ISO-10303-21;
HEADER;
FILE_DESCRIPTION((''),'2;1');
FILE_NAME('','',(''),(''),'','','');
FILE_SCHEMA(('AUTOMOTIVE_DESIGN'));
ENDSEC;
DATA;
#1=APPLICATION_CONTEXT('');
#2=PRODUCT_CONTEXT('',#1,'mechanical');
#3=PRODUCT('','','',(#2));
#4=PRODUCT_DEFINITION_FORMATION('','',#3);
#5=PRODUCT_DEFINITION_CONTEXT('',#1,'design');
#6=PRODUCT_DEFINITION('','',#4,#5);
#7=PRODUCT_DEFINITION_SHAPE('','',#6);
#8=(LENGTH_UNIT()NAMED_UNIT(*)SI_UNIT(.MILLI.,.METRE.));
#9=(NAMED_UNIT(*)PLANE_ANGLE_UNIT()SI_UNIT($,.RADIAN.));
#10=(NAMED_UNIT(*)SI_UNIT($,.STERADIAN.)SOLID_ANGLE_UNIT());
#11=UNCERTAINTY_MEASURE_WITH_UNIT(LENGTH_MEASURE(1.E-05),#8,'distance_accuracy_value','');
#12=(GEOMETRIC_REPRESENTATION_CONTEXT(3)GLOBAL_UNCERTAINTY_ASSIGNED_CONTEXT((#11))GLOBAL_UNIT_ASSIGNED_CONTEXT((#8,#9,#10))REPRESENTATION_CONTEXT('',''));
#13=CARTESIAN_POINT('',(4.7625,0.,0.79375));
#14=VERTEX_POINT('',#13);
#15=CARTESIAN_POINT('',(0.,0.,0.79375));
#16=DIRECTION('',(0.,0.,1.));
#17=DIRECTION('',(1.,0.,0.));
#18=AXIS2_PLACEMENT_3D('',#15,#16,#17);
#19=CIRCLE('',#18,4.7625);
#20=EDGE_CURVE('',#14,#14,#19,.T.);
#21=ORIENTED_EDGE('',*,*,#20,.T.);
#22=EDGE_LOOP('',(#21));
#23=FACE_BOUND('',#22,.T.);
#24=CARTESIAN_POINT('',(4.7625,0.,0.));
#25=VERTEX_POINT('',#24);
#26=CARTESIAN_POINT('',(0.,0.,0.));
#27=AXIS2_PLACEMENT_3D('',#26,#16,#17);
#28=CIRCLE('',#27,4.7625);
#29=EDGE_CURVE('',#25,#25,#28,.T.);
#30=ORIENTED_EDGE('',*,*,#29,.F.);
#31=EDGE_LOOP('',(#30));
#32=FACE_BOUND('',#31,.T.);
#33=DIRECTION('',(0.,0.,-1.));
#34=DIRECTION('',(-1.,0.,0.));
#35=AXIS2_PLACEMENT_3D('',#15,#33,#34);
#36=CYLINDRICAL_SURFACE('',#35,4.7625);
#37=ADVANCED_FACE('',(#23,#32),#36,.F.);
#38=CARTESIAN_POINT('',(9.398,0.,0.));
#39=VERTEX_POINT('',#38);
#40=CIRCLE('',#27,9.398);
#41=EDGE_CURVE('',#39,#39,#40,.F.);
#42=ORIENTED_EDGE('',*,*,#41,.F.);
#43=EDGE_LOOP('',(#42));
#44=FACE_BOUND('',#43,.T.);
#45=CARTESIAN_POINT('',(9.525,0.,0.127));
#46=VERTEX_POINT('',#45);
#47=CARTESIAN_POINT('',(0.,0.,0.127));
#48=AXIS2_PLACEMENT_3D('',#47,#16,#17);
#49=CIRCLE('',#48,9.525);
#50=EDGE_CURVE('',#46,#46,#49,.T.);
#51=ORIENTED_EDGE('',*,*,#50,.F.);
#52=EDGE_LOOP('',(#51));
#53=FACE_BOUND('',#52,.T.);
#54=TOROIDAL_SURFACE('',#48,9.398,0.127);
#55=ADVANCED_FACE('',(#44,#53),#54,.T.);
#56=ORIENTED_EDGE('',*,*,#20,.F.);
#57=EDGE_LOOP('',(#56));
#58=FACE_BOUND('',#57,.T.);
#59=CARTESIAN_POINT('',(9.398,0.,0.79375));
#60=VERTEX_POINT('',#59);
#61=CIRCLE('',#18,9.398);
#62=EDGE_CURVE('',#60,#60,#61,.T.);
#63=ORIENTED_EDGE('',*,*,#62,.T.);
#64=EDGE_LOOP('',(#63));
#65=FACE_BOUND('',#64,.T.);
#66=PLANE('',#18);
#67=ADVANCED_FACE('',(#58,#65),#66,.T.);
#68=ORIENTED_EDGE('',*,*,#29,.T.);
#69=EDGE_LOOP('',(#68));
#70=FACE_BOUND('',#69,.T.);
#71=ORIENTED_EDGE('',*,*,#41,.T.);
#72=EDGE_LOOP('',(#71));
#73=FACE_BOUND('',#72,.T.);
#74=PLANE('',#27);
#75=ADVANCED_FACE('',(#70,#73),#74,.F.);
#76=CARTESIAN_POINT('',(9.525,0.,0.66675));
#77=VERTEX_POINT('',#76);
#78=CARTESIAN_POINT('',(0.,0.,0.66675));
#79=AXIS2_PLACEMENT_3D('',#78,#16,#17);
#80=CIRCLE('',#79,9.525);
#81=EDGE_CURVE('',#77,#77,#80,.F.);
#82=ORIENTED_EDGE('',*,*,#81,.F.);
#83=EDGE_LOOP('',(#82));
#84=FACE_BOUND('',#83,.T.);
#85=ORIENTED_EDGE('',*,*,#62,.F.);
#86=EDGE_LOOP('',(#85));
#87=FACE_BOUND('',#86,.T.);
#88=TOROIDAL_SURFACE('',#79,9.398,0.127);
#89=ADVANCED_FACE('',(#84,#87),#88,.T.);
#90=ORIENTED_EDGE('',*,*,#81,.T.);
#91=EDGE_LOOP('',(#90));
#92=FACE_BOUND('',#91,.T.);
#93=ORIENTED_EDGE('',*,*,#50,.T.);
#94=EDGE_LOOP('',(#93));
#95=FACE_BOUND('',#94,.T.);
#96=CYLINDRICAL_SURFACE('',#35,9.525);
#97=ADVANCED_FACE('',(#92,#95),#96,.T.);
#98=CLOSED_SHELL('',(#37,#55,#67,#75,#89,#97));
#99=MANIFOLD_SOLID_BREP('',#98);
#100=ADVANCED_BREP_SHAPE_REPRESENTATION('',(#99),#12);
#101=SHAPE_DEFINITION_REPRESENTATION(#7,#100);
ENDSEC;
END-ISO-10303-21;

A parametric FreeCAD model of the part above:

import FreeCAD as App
import Part
import Sketcher

V = App.Vector
Q = App.Units.Quantity


def edges_at(feature, points):
    """Names of the edges that pass closest to the given points."""
    edges = feature.Shape.Edges
    near = lambda p: min(range(len(edges)), key=lambda i: edges[i].distToShape(Part.Vertex(*p))[0])
    return sorted({f"Edge{near(p) + 1}" for p in points})

doc = App.newDocument("Part")
body = doc.addObject("PartDesign::Body", "Body")

sketch1 = doc.addObject("Sketcher::SketchObject", "Sketch")
body.addObject(sketch1)
sketch1.AttachmentSupport = (doc.XY_Plane, [""])
sketch1.MapMode = "FlatFace"
sketch1.addGeometry([
    Part.Circle(V(0, 0, 0), V(0, 0, 1), 9.5),
    Part.Circle(V(0, 0, 0), V(0, 0, 1), 4.8),
], False)
sketch1.addConstraint([
    Sketcher.Constraint("Coincident", 0, 3, -1, 1),
    Sketcher.Constraint("Coincident", 1, 3, -1, 1),
    Sketcher.Constraint("Diameter", 0, Q("0.75 in")),
    Sketcher.Constraint("Diameter", 1, Q("0.375 in")),
])
pad1 = doc.addObject("PartDesign::Pad", "Pad")
body.addObject(pad1)
pad1.Profile = sketch1
pad1.Length = Q("0.03125 in")
doc.recompute()

fillet = doc.addObject("PartDesign::Fillet", "Fillet")
body.addObject(fillet)
fillet.Base = (pad1, edges_at(pad1, [(-9.525, 0, 0), (-9.525, 0, 0.794)]))
fillet.Radius = Q("0.005 in")

doc.recompute()
